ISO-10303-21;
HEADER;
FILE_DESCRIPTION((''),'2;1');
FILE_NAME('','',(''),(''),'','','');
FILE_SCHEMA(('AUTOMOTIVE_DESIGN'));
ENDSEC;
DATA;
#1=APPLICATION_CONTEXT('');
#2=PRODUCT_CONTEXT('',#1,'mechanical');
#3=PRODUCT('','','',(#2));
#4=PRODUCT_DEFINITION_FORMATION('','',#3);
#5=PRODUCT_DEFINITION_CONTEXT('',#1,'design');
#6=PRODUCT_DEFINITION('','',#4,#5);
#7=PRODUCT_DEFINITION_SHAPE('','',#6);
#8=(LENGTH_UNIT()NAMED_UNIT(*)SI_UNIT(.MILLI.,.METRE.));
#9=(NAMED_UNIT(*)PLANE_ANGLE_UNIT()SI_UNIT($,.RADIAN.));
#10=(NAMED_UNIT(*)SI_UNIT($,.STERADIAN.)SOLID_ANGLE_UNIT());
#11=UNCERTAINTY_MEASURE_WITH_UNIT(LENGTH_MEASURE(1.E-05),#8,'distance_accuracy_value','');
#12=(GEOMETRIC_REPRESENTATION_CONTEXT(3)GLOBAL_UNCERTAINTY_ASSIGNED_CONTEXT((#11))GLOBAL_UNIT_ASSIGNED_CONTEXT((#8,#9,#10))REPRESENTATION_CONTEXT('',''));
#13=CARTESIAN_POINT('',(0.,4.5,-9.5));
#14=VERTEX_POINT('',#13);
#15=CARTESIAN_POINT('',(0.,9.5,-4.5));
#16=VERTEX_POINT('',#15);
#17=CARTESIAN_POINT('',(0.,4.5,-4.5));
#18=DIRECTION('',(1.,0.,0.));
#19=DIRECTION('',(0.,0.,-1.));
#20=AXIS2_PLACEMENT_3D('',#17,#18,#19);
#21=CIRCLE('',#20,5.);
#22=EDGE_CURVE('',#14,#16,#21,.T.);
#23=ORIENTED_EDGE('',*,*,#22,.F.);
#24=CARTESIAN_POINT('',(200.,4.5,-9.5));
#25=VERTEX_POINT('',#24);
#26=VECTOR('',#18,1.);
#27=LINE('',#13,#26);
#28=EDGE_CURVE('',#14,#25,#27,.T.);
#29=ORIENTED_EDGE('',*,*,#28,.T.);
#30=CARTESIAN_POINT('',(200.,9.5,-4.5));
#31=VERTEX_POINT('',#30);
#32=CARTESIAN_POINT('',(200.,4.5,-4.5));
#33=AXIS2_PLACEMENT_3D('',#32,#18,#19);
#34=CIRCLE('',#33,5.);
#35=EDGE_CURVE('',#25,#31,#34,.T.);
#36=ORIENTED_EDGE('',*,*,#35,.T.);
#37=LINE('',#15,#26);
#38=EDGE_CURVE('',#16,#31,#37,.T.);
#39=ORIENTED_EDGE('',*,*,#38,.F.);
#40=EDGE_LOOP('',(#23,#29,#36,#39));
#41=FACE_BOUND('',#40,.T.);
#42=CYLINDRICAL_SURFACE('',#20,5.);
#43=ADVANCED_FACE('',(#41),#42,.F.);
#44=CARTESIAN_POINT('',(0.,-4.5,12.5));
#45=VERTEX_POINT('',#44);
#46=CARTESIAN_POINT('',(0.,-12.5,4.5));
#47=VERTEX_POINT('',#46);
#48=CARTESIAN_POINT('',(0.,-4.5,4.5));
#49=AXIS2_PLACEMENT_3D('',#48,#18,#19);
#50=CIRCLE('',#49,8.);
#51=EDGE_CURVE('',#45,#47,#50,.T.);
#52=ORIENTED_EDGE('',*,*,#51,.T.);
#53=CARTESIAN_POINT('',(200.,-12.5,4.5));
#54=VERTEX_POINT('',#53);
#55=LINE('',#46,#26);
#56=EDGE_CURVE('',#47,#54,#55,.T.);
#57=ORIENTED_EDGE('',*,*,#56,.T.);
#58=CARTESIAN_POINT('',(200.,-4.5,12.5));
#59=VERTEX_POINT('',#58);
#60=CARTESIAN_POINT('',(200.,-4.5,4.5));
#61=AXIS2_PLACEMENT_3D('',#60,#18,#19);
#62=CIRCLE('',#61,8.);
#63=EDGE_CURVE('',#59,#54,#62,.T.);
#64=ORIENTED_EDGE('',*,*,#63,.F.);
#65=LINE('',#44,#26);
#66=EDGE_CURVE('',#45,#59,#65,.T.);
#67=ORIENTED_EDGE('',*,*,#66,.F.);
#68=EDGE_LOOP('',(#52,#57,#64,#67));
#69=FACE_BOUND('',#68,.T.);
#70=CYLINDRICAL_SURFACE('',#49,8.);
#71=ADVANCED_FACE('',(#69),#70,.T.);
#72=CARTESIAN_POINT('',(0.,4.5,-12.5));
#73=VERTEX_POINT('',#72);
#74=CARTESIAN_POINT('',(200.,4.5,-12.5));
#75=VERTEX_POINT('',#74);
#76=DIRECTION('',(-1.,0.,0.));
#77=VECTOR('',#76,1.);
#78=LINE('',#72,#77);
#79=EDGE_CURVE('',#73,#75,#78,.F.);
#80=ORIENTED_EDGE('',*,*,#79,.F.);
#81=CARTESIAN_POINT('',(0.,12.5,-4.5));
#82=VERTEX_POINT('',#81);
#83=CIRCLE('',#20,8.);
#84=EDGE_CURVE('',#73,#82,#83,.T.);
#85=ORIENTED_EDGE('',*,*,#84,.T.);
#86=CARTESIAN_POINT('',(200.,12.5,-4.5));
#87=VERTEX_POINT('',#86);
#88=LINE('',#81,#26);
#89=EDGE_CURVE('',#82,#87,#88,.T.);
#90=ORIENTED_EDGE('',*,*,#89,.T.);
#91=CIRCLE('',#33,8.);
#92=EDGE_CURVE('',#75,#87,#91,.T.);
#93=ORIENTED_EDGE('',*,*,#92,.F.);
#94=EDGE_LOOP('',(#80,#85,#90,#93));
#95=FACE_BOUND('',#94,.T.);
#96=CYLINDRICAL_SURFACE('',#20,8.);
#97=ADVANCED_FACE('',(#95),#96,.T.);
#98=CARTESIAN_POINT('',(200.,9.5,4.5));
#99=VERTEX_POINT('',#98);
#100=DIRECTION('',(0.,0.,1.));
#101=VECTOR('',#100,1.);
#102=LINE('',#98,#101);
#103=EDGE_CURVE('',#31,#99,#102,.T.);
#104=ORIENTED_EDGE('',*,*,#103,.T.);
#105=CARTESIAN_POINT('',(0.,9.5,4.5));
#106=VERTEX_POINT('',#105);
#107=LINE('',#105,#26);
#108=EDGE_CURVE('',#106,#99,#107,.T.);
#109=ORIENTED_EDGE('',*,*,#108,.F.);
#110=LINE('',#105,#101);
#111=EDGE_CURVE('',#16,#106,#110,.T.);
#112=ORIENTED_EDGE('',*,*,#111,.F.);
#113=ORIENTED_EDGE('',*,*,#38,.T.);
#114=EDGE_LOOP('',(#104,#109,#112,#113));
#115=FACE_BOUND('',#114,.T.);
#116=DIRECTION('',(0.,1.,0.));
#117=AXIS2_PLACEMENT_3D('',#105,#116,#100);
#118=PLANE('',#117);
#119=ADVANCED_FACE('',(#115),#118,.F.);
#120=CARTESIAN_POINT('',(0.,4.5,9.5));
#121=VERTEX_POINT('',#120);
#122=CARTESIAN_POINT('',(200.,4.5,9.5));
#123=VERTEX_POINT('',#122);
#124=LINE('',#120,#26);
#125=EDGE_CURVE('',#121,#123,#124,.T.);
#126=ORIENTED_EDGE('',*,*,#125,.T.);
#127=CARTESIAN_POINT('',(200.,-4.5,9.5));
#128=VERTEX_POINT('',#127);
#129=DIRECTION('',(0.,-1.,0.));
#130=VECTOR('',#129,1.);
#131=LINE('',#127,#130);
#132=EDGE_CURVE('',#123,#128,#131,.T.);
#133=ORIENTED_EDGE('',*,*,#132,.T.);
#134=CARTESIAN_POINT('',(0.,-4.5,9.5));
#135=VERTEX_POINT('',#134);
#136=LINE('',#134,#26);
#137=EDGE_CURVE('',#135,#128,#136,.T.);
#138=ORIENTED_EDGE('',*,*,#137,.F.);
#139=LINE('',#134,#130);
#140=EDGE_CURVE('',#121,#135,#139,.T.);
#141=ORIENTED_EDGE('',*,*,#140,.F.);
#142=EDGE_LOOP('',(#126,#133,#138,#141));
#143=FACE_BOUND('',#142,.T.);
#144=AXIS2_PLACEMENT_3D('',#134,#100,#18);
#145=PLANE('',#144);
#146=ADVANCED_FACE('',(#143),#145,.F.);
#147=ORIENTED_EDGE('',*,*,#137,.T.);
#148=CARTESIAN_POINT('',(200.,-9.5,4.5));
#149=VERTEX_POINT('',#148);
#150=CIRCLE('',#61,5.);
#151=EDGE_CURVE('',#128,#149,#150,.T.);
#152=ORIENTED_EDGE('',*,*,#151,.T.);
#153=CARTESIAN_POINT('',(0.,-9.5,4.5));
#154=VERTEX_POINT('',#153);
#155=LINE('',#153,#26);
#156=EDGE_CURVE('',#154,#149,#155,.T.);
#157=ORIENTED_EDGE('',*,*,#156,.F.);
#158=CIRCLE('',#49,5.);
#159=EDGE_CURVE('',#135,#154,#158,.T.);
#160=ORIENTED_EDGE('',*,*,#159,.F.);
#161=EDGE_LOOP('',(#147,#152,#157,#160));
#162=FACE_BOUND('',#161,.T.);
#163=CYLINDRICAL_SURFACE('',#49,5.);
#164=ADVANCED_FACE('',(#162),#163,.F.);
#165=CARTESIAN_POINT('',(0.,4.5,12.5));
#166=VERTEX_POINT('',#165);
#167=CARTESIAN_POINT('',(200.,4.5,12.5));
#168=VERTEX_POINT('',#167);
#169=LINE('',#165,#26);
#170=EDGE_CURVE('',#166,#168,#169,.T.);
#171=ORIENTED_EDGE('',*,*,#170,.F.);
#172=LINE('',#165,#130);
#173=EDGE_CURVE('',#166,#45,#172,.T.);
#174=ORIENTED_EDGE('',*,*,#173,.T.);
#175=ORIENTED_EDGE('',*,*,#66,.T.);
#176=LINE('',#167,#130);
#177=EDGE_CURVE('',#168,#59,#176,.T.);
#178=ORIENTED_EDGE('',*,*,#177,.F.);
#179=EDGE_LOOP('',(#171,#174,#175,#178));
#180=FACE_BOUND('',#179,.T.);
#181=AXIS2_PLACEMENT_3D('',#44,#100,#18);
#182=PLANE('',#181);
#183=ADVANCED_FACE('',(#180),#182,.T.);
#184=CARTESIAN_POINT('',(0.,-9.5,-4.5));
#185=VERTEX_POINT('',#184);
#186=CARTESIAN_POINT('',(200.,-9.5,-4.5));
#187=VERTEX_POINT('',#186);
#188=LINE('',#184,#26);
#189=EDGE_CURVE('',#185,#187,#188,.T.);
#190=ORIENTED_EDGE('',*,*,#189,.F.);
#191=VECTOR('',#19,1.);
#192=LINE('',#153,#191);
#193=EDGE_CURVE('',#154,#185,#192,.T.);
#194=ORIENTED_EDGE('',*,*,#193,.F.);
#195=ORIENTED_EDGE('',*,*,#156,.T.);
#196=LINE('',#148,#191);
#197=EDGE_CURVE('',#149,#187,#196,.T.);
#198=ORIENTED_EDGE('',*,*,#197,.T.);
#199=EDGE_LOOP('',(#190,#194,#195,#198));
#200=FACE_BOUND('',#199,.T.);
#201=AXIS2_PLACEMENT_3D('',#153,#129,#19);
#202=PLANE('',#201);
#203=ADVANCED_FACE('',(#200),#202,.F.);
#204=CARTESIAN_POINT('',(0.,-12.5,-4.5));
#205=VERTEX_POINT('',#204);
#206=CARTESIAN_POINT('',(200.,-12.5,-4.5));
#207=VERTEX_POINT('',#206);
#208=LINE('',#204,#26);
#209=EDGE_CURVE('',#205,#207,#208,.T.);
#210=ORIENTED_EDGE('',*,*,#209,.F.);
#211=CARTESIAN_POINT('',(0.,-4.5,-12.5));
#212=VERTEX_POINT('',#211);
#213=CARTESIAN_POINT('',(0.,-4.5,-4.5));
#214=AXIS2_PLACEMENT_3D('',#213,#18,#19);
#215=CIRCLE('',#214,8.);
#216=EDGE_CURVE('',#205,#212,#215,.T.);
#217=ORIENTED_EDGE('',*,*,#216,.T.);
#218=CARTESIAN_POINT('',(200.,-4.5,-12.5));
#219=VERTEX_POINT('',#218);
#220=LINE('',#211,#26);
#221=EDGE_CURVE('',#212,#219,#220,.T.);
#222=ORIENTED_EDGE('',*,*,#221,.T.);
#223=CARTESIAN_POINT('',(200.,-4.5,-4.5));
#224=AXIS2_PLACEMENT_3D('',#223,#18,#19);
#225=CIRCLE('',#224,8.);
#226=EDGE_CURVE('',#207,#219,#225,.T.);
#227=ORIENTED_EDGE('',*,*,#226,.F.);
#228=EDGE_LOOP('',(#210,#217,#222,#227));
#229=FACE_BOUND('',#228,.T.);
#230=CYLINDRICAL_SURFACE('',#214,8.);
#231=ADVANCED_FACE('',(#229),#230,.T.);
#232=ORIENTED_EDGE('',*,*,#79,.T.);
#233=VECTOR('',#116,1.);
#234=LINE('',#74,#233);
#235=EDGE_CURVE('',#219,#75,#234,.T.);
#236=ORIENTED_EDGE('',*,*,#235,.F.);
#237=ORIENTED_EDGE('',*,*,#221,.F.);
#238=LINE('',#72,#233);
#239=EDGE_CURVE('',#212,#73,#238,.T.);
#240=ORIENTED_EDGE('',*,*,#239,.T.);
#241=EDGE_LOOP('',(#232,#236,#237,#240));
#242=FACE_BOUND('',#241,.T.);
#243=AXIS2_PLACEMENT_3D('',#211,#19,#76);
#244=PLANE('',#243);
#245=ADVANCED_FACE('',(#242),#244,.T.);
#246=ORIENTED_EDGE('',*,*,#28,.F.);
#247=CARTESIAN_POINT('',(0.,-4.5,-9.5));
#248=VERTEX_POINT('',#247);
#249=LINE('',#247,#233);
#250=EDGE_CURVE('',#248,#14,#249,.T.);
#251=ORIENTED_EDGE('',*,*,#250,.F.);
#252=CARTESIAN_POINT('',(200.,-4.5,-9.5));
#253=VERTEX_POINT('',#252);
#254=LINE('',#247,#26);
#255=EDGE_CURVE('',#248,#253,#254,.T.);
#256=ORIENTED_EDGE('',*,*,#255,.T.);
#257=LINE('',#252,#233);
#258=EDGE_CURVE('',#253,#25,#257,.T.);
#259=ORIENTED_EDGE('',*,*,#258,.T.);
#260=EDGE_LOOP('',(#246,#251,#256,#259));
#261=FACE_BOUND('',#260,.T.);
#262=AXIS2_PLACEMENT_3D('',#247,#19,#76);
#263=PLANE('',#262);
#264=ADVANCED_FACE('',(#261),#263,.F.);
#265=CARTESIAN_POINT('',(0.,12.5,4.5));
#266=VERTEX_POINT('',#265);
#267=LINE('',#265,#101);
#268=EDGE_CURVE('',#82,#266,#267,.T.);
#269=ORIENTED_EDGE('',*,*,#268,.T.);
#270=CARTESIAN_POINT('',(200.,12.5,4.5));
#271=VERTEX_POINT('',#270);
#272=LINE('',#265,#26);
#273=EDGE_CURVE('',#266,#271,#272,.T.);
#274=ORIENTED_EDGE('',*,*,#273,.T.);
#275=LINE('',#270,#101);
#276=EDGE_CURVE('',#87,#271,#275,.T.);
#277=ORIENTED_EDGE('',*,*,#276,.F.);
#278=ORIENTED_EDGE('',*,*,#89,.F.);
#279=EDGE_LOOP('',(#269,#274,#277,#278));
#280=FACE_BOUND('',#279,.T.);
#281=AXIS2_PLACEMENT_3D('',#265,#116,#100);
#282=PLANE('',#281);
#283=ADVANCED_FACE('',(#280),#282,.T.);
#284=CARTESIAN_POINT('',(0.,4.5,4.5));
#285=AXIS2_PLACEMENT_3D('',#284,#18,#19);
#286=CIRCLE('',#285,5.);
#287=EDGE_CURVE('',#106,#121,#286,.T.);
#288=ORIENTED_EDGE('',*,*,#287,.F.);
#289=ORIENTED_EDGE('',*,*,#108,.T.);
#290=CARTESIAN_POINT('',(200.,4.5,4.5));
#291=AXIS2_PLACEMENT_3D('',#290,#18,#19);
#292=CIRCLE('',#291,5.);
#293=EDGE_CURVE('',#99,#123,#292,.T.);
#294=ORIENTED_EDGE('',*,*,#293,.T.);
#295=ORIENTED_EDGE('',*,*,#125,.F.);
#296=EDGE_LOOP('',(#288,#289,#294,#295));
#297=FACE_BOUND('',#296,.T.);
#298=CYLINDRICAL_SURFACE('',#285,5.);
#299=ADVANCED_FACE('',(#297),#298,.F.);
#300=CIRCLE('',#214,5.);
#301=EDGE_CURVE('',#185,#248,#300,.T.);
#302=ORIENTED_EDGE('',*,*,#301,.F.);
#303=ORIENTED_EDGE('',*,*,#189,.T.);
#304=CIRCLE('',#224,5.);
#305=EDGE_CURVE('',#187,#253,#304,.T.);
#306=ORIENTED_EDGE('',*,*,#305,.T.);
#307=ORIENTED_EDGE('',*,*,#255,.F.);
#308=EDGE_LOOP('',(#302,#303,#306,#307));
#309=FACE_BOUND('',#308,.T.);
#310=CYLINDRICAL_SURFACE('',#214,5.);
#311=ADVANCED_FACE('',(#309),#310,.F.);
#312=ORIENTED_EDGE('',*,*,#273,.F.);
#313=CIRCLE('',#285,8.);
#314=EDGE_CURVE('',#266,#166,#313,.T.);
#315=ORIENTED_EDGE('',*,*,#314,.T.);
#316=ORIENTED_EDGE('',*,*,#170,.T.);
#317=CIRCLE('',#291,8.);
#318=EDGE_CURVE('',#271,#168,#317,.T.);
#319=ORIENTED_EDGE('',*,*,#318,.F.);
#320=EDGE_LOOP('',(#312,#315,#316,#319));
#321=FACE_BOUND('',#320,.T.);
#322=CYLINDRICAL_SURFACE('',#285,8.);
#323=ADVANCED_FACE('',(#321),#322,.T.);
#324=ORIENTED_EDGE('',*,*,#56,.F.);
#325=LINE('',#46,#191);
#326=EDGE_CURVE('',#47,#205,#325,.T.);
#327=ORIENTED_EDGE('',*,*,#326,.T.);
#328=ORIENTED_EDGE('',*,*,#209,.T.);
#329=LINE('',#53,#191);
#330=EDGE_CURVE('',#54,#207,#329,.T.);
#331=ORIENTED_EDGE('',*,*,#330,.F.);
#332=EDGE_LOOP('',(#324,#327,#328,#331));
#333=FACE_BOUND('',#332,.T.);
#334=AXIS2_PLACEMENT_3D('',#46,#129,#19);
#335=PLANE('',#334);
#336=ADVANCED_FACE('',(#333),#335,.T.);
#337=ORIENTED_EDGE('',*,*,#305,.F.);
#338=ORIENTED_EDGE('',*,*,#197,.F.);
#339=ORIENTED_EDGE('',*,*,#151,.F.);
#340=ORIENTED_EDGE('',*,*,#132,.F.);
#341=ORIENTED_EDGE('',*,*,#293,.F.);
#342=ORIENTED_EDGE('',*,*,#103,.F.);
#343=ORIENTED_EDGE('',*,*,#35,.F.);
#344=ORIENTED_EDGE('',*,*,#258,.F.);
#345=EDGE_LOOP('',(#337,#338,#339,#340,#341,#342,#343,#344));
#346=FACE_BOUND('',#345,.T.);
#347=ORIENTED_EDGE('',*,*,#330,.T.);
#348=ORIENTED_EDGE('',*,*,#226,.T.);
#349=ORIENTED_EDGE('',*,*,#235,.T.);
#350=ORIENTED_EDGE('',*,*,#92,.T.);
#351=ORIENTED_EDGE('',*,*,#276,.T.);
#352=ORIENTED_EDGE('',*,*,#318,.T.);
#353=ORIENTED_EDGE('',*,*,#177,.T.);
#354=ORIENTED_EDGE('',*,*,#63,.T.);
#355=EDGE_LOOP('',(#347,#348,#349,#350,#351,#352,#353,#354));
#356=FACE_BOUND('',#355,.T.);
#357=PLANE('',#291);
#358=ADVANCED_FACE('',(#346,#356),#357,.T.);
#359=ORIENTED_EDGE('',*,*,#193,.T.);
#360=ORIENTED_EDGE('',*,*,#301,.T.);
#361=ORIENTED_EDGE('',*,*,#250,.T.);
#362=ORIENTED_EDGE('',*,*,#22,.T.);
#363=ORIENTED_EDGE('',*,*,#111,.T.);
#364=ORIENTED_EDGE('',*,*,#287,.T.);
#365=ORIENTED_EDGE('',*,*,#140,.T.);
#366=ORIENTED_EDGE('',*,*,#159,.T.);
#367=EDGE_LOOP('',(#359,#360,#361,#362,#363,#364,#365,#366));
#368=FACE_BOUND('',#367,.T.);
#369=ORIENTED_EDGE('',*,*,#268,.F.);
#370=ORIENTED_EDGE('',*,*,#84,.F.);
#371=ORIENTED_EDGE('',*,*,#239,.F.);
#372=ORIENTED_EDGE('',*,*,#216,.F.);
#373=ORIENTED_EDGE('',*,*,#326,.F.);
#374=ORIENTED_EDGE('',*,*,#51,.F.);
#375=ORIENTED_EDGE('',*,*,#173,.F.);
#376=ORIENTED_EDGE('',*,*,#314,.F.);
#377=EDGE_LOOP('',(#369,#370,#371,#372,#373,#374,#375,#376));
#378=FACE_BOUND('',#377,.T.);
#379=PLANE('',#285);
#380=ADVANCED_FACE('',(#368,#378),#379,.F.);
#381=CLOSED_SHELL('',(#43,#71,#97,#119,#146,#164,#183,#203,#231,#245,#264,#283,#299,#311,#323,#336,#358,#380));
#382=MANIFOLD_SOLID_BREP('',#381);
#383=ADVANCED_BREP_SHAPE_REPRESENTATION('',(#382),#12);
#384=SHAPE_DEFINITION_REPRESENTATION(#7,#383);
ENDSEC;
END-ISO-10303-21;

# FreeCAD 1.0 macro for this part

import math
import FreeCAD as App
import Part
import Sketcher
Q = App.Units.Quantity

doc = App.newDocument("Part")
body = doc.addObject("PartDesign::Body", "Body")

sketch1 = body.newObject("Sketcher::SketchObject", "Sketch")
sketch1.AttachmentSupport = (doc.getObject("YZ_Plane"), [""])
sketch1.MapMode = "FlatFace"
sketch1.addGeometry(Part.LineSegment(App.Vector(12.5, -4.5, 0), App.Vector(12.5, 4.5, 0)), False)
sketch1.addGeometry(Part.ArcOfCircle(Part.Circle(App.Vector(4.5, 4.5, 0), App.Vector(0, 0, 1), 8), math.radians(0), math.radians(90)), False)
sketch1.addGeometry(Part.LineSegment(App.Vector(4.5, 12.5, 0), App.Vector(-4.5, 12.5, 0)), False)
sketch1.addGeometry(Part.ArcOfCircle(Part.Circle(App.Vector(-4.5, 4.5, 0), App.Vector(0, 0, 1), 8), math.radians(90), math.radians(180)), False)
sketch1.addGeometry(Part.LineSegment(App.Vector(-12.5, 4.5, 0), App.Vector(-12.5, -4.5, 0)), False)
sketch1.addGeometry(Part.ArcOfCircle(Part.Circle(App.Vector(-4.5, -4.5, 0), App.Vector(0, 0, 1), 8), math.radians(-180), math.radians(-90)), False)
sketch1.addGeometry(Part.LineSegment(App.Vector(-4.5, -12.5, 0), App.Vector(4.5, -12.5, 0)), False)
sketch1.addGeometry(Part.ArcOfCircle(Part.Circle(App.Vector(4.5, -4.5, 0), App.Vector(0, 0, 1), 8), math.radians(-90), math.radians(0)), False)
sketch1.addGeometry(Part.LineSegment(App.Vector(9.5, 4.5, 0), App.Vector(9.5, -4.5, 0)), False)
sketch1.addGeometry(Part.ArcOfCircle(Part.Circle(App.Vector(4.5, -4.5, 0), App.Vector(0, 0, 1), 5), math.radians(-90), math.radians(0)), False)
sketch1.addGeometry(Part.LineSegment(App.Vector(4.5, -9.5, 0), App.Vector(-4.5, -9.5, 0)), False)
sketch1.addGeometry(Part.ArcOfCircle(Part.Circle(App.Vector(-4.5, -4.5, 0), App.Vector(0, 0, 1), 5), math.radians(180), math.radians(270)), False)
sketch1.addGeometry(Part.LineSegment(App.Vector(-9.5, -4.5, 0), App.Vector(-9.5, 4.5, 0)), False)
sketch1.addGeometry(Part.ArcOfCircle(Part.Circle(App.Vector(-4.5, 4.5, 0), App.Vector(0, 0, 1), 5), math.radians(90), math.radians(180)), False)
sketch1.addGeometry(Part.LineSegment(App.Vector(-4.5, 9.5, 0), App.Vector(4.5, 9.5, 0)), False)
sketch1.addGeometry(Part.ArcOfCircle(Part.Circle(App.Vector(4.5, 4.5, 0), App.Vector(0, 0, 1), 5), math.radians(0), math.radians(90)), False)
sketch1.addConstraint(Sketcher.Constraint("Tangent", 0, 2, 1, 1))
sketch1.addConstraint(Sketcher.Constraint("Tangent", 1, 2, 2, 1))
sketch1.addConstraint(Sketcher.Constraint("Tangent", 2, 2, 3, 1))
sketch1.addConstraint(Sketcher.Constraint("Tangent", 3, 2, 4, 1))
sketch1.addConstraint(Sketcher.Constraint("Tangent", 4, 2, 5, 1))
sketch1.addConstraint(Sketcher.Constraint("Tangent", 5, 2, 6, 1))
sketch1.addConstraint(Sketcher.Constraint("Tangent", 6, 2, 7, 1))
sketch1.addConstraint(Sketcher.Constraint("Tangent", 7, 2, 0, 1))
sketch1.addConstraint(Sketcher.Constraint("Tangent", 8, 2, 9, 2))
sketch1.addConstraint(Sketcher.Constraint("Tangent", 9, 1, 10, 1))
sketch1.addConstraint(Sketcher.Constraint("Tangent", 10, 2, 11, 2))
sketch1.addConstraint(Sketcher.Constraint("Tangent", 11, 1, 12, 1))
sketch1.addConstraint(Sketcher.Constraint("Tangent", 12, 2, 13, 2))
sketch1.addConstraint(Sketcher.Constraint("Tangent", 13, 1, 14, 1))
sketch1.addConstraint(Sketcher.Constraint("Tangent", 14, 2, 15, 2))
sketch1.addConstraint(Sketcher.Constraint("Tangent", 15, 1, 8, 1))
sketch1.addConstraint(Sketcher.Constraint("Vertical", 0))
sketch1.addConstraint(Sketcher.Constraint("Horizontal", 2))
sketch1.addConstraint(Sketcher.Constraint("Vertical", 4))
sketch1.addConstraint(Sketcher.Constraint("Horizontal", 6))
sketch1.addConstraint(Sketcher.Constraint("Vertical", 8))
sketch1.addConstraint(Sketcher.Constraint("Horizontal", 10))
sketch1.addConstraint(Sketcher.Constraint("Vertical", 12))
sketch1.addConstraint(Sketcher.Constraint("Horizontal", 14))
sketch1.addConstraint(Sketcher.Constraint("Coincident", 9, 3, 7, 3))
sketch1.addConstraint(Sketcher.Constraint("Coincident", 11, 3, 5, 3))
sketch1.addConstraint(Sketcher.Constraint("Coincident", 13, 3, 3, 3))
sketch1.addConstraint(Sketcher.Constraint("Equal", 1, 3))
sketch1.addConstraint(Sketcher.Constraint("Equal", 3, 5))
sketch1.addConstraint(Sketcher.Constraint("Equal", 5, 7))
sketch1.addConstraint(Sketcher.Constraint("Equal", 13, 15))
sketch1.addConstraint(Sketcher.Constraint("Symmetric", 1, 3, 5, 3, -1, 1))
sketch1.addConstraint(Sketcher.Constraint("Equal", 14, 0))
sketch1.addConstraint(Sketcher.Constraint("Radius", 1, Q("8 mm")))
sketch1.addConstraint(Sketcher.Constraint("Radius", 9, Q("5 mm")))
sketch1.addConstraint(Sketcher.Constraint("DistanceX", 2, 2, 2, 1, Q("9 mm")))

sketch2 = body.newObject("Sketcher::SketchObject", "Sketch001")
sketch2.AttachmentSupport = (doc.getObject("XY_Plane"), [""])
sketch2.MapMode = "FlatFace"
sketch2.addGeometry(Part.LineSegment(App.Vector(0, 0, 0), App.Vector(200, 0, 0)), False)
sketch2.addConstraint(Sketcher.Constraint("Horizontal", 0))
sketch2.addConstraint(Sketcher.Constraint("Coincident", 0, 1, -1, 1))
sketch2.addConstraint(Sketcher.Constraint("DistanceX", 0, 1, 0, 2, Q("200 mm")))
doc.recompute()

additivepipe = body.newObject("PartDesign::AdditivePipe", "AdditivePipe")
additivepipe.Profile = sketch1
additivepipe.Spine = (sketch2, ["Edge1"])

doc.recompute()
